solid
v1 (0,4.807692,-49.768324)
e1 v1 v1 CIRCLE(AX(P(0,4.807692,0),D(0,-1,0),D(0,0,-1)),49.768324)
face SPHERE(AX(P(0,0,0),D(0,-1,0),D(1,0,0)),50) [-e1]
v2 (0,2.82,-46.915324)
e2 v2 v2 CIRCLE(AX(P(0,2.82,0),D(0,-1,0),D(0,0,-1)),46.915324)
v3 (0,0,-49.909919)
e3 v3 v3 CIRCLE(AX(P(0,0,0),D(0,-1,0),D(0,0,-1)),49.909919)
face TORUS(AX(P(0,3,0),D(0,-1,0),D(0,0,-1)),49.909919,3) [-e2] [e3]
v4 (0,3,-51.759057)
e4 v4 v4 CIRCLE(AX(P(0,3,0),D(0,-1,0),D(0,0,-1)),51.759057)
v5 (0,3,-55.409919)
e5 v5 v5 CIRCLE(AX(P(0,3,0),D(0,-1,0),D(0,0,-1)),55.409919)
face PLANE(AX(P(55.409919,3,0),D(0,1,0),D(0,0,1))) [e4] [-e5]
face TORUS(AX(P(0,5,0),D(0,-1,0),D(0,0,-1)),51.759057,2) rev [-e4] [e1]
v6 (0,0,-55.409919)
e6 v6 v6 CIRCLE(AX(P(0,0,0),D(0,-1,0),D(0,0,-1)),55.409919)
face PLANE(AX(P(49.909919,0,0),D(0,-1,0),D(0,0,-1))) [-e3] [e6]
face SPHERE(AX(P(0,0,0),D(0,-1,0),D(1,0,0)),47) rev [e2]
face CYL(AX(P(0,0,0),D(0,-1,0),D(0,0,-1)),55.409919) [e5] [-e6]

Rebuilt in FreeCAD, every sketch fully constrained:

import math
import FreeCAD as App
import Part
import Sketcher
from FreeCAD import Vector
Q = App.Units.Quantity

doc = App.newDocument("Part")
body = doc.addObject("PartDesign::Body", "Body")

# Sketch on XY plane
sketch1 = doc.addObject("Sketcher::SketchObject", "Sketch")
body.addObject(sketch1)
sketch1.AttachmentSupport = (doc.XY_Plane, [""])
sketch1.MapMode = "FlatFace"
sketch1.addGeometry([
    Part.LineSegment(Vector(49.9, 0, 0), Vector(55.4, 0, 0)),  # 0
    Part.LineSegment(Vector(55.4, 0, 0), Vector(55.4, 3, 0)),  # 1
    Part.LineSegment(Vector(55.4, 3, 0), Vector(51.8, 3, 0)),  # 2
    Part.ArcOfCircle(Part.Circle(Vector(51.8, 5, 0), Vector(0, 0, 1), 2), math.radians(-174), math.radians(-90)),  # 3
    Part.ArcOfCircle(Part.Circle(Vector(0, 0, 0), Vector(0, 0, 1), 50), math.radians(6), math.radians(90)),  # 4
    Part.LineSegment(Vector(0, 50, 0), Vector(0, 47, 0)),  # 5
    Part.ArcOfCircle(Part.Circle(Vector(0, 0, 0), Vector(0, 0, 1), 47), math.radians(3), math.radians(90)),  # 6
    Part.ArcOfCircle(Part.Circle(Vector(49.9, 3, 0), Vector(0, 0, 1), 3), math.radians(-177), math.radians(-90)),  # 7
], False)
sketch1.addConstraint([
    Sketcher.Constraint("Coincident", 0, 2, 1, 1),
    Sketcher.Constraint("Coincident", 1, 2, 2, 1),
    Sketcher.Constraint("Tangent", 2, 2, 3, 2),
    Sketcher.Constraint("Tangent", 3, 1, 4, 1),
    Sketcher.Constraint("Coincident", 4, 2, 5, 1),
    Sketcher.Constraint("Coincident", 5, 2, 6, 2),
    Sketcher.Constraint("Tangent", 6, 1, 7, 1),
    Sketcher.Constraint("Tangent", 7, 2, 0, 1),
    Sketcher.Constraint("Horizontal", 0),
    Sketcher.Constraint("Vertical", 1),
    Sketcher.Constraint("Horizontal", 2),
    Sketcher.Constraint("Vertical", 5),
    Sketcher.Constraint("Coincident", 4, 3, -1, 1),
    Sketcher.Constraint("Coincident", 6, 3, -1, 1),
    Sketcher.Constraint("PointOnObject", 0, 2, -1),
    Sketcher.Constraint("PointOnObject", 4, 2, -2),
    Sketcher.Constraint("Horizontal", 7, 3, 1, 2),
    Sketcher.Constraint("Equal", 1, 5),
    Sketcher.Constraint("Radius", 3, Q("2 mm")),
    Sketcher.Constraint("Radius", 4, Q("50 mm")),
    Sketcher.Constraint("Radius", 6, Q("47 mm")),
    Sketcher.Constraint("DistanceX", 0, 1, 0, 2, Q("5.5 mm")),
])
revolution = doc.addObject("PartDesign::Revolution", "Revolution")
body.addObject(revolution)
revolution.Profile = sketch1
revolution.ReferenceAxis = (sketch1, ["V_Axis"])
revolution.Angle = 360

doc.recompute()
